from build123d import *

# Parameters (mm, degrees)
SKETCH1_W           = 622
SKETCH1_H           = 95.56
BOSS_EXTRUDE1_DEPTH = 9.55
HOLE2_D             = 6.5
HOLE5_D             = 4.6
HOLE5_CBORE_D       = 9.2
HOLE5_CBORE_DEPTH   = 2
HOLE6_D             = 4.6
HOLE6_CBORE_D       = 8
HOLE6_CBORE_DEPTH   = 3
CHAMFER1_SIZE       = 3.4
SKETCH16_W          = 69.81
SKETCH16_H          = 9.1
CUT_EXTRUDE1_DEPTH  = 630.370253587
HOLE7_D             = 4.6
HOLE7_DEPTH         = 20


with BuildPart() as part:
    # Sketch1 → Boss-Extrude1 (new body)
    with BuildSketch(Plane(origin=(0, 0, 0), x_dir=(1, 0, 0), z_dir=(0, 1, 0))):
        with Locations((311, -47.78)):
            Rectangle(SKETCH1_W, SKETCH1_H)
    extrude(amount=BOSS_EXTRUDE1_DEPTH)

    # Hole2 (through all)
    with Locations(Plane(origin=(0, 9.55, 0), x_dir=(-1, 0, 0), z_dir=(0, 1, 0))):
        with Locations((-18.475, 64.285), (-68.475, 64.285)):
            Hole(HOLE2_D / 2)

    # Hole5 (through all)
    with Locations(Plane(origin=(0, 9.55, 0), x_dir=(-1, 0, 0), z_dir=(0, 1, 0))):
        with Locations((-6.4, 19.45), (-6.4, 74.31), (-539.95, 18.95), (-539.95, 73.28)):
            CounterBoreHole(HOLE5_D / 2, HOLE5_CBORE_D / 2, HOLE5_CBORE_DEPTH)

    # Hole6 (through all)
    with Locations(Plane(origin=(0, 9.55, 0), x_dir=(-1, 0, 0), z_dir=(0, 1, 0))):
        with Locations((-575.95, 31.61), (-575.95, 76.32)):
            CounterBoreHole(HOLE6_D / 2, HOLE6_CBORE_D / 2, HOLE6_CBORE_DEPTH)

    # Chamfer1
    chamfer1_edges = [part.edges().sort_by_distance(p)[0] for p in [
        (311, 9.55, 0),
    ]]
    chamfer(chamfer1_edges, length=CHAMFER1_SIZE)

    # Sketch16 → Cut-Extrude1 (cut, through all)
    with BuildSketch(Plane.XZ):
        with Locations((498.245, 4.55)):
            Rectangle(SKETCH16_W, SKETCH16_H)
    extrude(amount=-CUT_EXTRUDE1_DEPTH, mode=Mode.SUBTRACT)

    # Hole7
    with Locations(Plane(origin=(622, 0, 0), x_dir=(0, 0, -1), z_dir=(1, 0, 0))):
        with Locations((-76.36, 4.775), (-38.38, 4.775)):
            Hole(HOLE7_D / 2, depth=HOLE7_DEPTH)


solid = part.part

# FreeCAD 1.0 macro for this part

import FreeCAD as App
import Part
import Sketcher
from FreeCAD import Vector


def edges_at(feature, points):
    """Names of the edges that pass closest to the given points."""
    edges = feature.Shape.Edges
    near = lambda p: min(range(len(edges)), key=lambda i: edges[i].distToShape(Part.Vertex(*p))[0])
    return sorted({f"Edge{near(p) + 1}" for p in points})

doc = App.newDocument("Part")
params = doc.addObject("Spreadsheet::Sheet", "Params")
for row, (alias, value) in enumerate([
    ("sketch1_width", "622 mm"),
    ("sketch1_height", "95.56 mm"),
    ("pad1_length", "9.55 mm"),
    ("sketch2_diameter", "6.5 mm"),
    ("hole_diameter", "6.5 mm"),
    ("sketch3_diameter", "4.6 mm"),
    ("hole2_diameter", "4.6 mm"),
    ("hole2_cbore_diameter", "9.2 mm"),
    ("hole2_cbore_depth", "2 mm"),
    ("sketch4_diameter", "4.6 mm"),
    ("hole3_diameter", "4.6 mm"),
    ("hole3_cbore_diameter", "8 mm"),
    ("hole3_cbore_depth", "3 mm"),
    ("chamfer_size", "3.4 mm"),
    ("sketch5_height", "9.1 mm"),
    ("sketch5_width", "69.81 mm"),
    ("sketch6_diameter", "4.6 mm"),
    ("hole4_diameter", "4.6 mm"),
    ("hole4_depth", "20 mm"),
], start=1):
    params.set(f"A{row}", alias)
    params.set(f"B{row}", "=" + value)
    params.setAlias(f"B{row}", alias)

body = doc.addObject("PartDesign::Body", "Body")

sketch1 = body.newObject("Sketcher::SketchObject", "Sketch")
sketch1.AttachmentSupport = (doc.getObject("XZ_Plane"), [""])
sketch1.MapMode = "FlatFace"
sketch1.addGeometry(Part.LineSegment(Vector(0, 0, 0), Vector(0, 96, 0)), False)
sketch1.addGeometry(Part.LineSegment(Vector(0, 96, 0), Vector(622, 96, 0)), False)
sketch1.addGeometry(Part.LineSegment(Vector(622, 96, 0), Vector(622, 0, 0)), False)
sketch1.addGeometry(Part.LineSegment(Vector(622, 0, 0), Vector(0, 0, 0)), False)
sketch1.addConstraint(Sketcher.Constraint("Coincident", 0, 2, 1, 1))
sketch1.addConstraint(Sketcher.Constraint("Coincident", 1, 2, 2, 1))
sketch1.addConstraint(Sketcher.Constraint("Coincident", 2, 2, 3, 1))
sketch1.addConstraint(Sketcher.Constraint("Coincident", 3, 2, 0, 1))
sketch1.addConstraint(Sketcher.Constraint("Vertical", 0))
sketch1.addConstraint(Sketcher.Constraint("Horizontal", 1))
sketch1.addConstraint(Sketcher.Constraint("Vertical", 2))
sketch1.addConstraint(Sketcher.Constraint("Horizontal", 3))
sketch1.addConstraint(Sketcher.Constraint("Coincident", 3, 2, -1, 1))
sketch1.addConstraint(Sketcher.Constraint("DistanceX", 1, 1, 1, 2, 622.0))
sketch1.addConstraint(Sketcher.Constraint("DistanceY", 0, 1, 0, 2, 95.56))
sketch1.setExpression("Constraints[9]", "Params.sketch1_width")
sketch1.setExpression("Constraints[10]", "Params.sketch1_height")
pad1 = body.newObject("PartDesign::Pad", "Pad")
pad1.Profile = sketch1
pad1.setExpression("Length", "Params.pad1_length")
pad1.Reversed = True

sketch2 = body.newObject("Sketcher::SketchObject", "Sketch001")
sketch2.AttachmentSupport = (doc.getObject("XZ_Plane"), [""])
sketch2.MapMode = "FlatFace"
sketch2.AttachmentOffset = App.Placement(Vector(0, 0, -9.55), App.Rotation())
sketch2.addGeometry(Part.Circle(Vector(18.5, 64.3, 0), Vector(0, 0, 1), 3.2), False)
sketch2.addGeometry(Part.Circle(Vector(68.5, 64.3, 0), Vector(0, 0, 1), 3.2), False)
sketch2.addConstraint(Sketcher.Constraint("Equal", 0, 1))
sketch2.addConstraint(Sketcher.Constraint("Horizontal", 0, 3, 1, 3))
sketch2.addConstraint(Sketcher.Constraint("Diameter", 0, 6.5))
sketch2.addConstraint(Sketcher.Constraint("DistanceX", 0, 3, 1, 3, 50.0))
sketch2.addConstraint(Sketcher.Constraint("DistanceX", -1, 1, 0, 3, 18.475))
sketch2.addConstraint(Sketcher.Constraint("DistanceY", -1, 1, 0, 3, 64.285))
sketch2.setExpression("Constraints[2]", "Params.sketch2_diameter")
doc.recompute()
hole = body.newObject("PartDesign::Hole", "Hole")
hole.Profile = sketch2
hole.ThreadType = "None"
hole.setExpression("Diameter", "Params.hole_diameter")
hole.DepthType = "ThroughAll"
hole.Reversed = True

sketch3 = body.newObject("Sketcher::SketchObject", "Sketch002")
sketch3.AttachmentSupport = (doc.getObject("XZ_Plane"), [""])
sketch3.MapMode = "FlatFace"
sketch3.AttachmentOffset = App.Placement(Vector(0, 0, -9.55), App.Rotation())
sketch3.addGeometry(Part.Circle(Vector(6.4, 19.4, 0), Vector(0, 0, 1), 2.3), False)
sketch3.addGeometry(Part.Circle(Vector(6.4, 74.3, 0), Vector(0, 0, 1), 2.3), False)
sketch3.addGeometry(Part.Circle(Vector(540, 18.9, 0), Vector(0, 0, 1), 2.3), False)
sketch3.addGeometry(Part.Circle(Vector(540, 73.3, 0), Vector(0, 0, 1), 2.3), False)
sketch3.addConstraint(Sketcher.Constraint("Equal", 0, 1))
sketch3.addConstraint(Sketcher.Constraint("Equal", 1, 2))
sketch3.addConstraint(Sketcher.Constraint("Equal", 2, 3))
sketch3.addConstraint(Sketcher.Constraint("Vertical", 0, 3, 1, 3))
sketch3.addConstraint(Sketcher.Constraint("Vertical", 2, 3, 3, 3))
sketch3.addConstraint(Sketcher.Constraint("Diameter", 0, 4.6))
sketch3.addConstraint(Sketcher.Constraint("DistanceX", -1, 1, 0, 3, 6.4))
sketch3.addConstraint(Sketcher.Constraint("DistanceY", 2, 3, 0, 3, 0.5))
sketch3.addConstraint(Sketcher.Constraint("DistanceY", -1, 1, 0, 3, 19.45))
sketch3.addConstraint(Sketcher.Constraint("DistanceY", -1, 1, 1, 3, 74.31))
sketch3.addConstraint(Sketcher.Constraint("DistanceX", -1, 1, 2, 3, 539.95))
sketch3.addConstraint(Sketcher.Constraint("DistanceY", -1, 1, 3, 3, 73.28))
sketch3.setExpression("Constraints[5]", "Params.sketch3_diameter")
doc.recompute()
hole2 = body.newObject("PartDesign::Hole", "Hole001")
hole2.Profile = sketch3
hole2.ThreadType = "None"
hole2.setExpression("Diameter", "Params.hole2_diameter")
hole2.DepthType = "ThroughAll"
hole2.HoleCutType = "Counterbore"
hole2.setExpression("HoleCutDiameter", "Params.hole2_cbore_diameter")
hole2.setExpression("HoleCutDepth", "Params.hole2_cbore_depth")
hole2.Reversed = True

sketch4 = body.newObject("Sketcher::SketchObject", "Sketch003")
sketch4.AttachmentSupport = (doc.getObject("XZ_Plane"), [""])
sketch4.MapMode = "FlatFace"
sketch4.AttachmentOffset = App.Placement(Vector(0, 0, -9.55), App.Rotation())
sketch4.addGeometry(Part.Circle(Vector(576, 31.6, 0), Vector(0, 0, 1), 2.3), False)
sketch4.addGeometry(Part.Circle(Vector(576, 76.3, 0), Vector(0, 0, 1), 2.3), False)
sketch4.addConstraint(Sketcher.Constraint("Equal", 0, 1))
sketch4.addConstraint(Sketcher.Constraint("Vertical", 0, 3, 1, 3))
sketch4.addConstraint(Sketcher.Constraint("Diameter", 0, 4.6))
sketch4.addConstraint(Sketcher.Constraint("DistanceX", -1, 1, 0, 3, 575.95))
sketch4.addConstraint(Sketcher.Constraint("DistanceY", -1, 1, 0, 3, 31.61))
sketch4.addConstraint(Sketcher.Constraint("DistanceY", -1, 1, 1, 3, 76.32))
sketch4.setExpression("Constraints[2]", "Params.sketch4_diameter")
doc.recompute()
hole3 = body.newObject("PartDesign::Hole", "Hole002")
hole3.Profile = sketch4
hole3.ThreadType = "None"
hole3.setExpression("Diameter", "Params.hole3_diameter")
hole3.DepthType = "ThroughAll"
hole3.HoleCutType = "Counterbore"
hole3.setExpression("HoleCutDiameter", "Params.hole3_cbore_diameter")
hole3.setExpression("HoleCutDepth", "Params.hole3_cbore_depth")
hole3.Reversed = True
doc.recompute()

chamfer = body.newObject("PartDesign::Chamfer", "Chamfer")
chamfer.Base = (hole3, edges_at(hole3, [(311, 9.55, 0)]))
chamfer.setExpression("Size", "Params.chamfer_size")

sketch5 = body.newObject("Sketcher::SketchObject", "Sketch004")
sketch5.AttachmentSupport = (doc.getObject("XZ_Plane"), [""])
sketch5.MapMode = "FlatFace"
sketch5.addGeometry(Part.LineSegment(Vector(463, 9, 0), Vector(463, 0, 0)), False)
sketch5.addGeometry(Part.LineSegment(Vector(463, 0, 0), Vector(533, 0, 0)), False)
sketch5.addGeometry(Part.LineSegment(Vector(533, 0, 0), Vector(533, 9, 0)), False)
sketch5.addGeometry(Part.LineSegment(Vector(533, 9, 0), Vector(463, 9, 0)), False)
sketch5.addConstraint(Sketcher.Constraint("Coincident", 0, 2, 1, 1))
sketch5.addConstraint(Sketcher.Constraint("Coincident", 1, 2, 2, 1))
sketch5.addConstraint(Sketcher.Constraint("Coincident", 2, 2, 3, 1))
sketch5.addConstraint(Sketcher.Constraint("Coincident", 3, 2, 0, 1))
sketch5.addConstraint(Sketcher.Constraint("Vertical", 0))
sketch5.addConstraint(Sketcher.Constraint("Horizontal", 1))
sketch5.addConstraint(Sketcher.Constraint("Vertical", 2))
sketch5.addConstraint(Sketcher.Constraint("Horizontal", 3))
sketch5.addConstraint(Sketcher.Constraint("PointOnObject", 0, 2, -1))
sketch5.addConstraint(Sketcher.Constraint("DistanceY", 0, 2, 0, 1, 9.1))
sketch5.addConstraint(Sketcher.Constraint("DistanceX", 1, 1, 1, 2, 69.81))
sketch5.addConstraint(Sketcher.Constraint("DistanceX", -1, 1, 0, 2, 463.34))
sketch5.setExpression("Constraints[9]", "Params.sketch5_height")
sketch5.setExpression("Constraints[10]", "Params.sketch5_width")
pocket1 = body.newObject("PartDesign::Pocket", "Pocket")
pocket1.Profile = sketch5
pocket1.Type = "ThroughAll"

sketch6 = body.newObject("Sketcher::SketchObject", "Sketch005")
sketch6.AttachmentSupport = (doc.getObject("YZ_Plane"), [""])
sketch6.MapMode = "FlatFace"
sketch6.AttachmentOffset = App.Placement(Vector(0, 0, 622), App.Rotation())
sketch6.addGeometry(Part.Circle(Vector(4.8, 76.4, 0), Vector(0, 0, 1), 2.3), False)
sketch6.addGeometry(Part.Circle(Vector(4.8, 38.4, 0), Vector(0, 0, 1), 2.3), False)
sketch6.addConstraint(Sketcher.Constraint("Equal", 0, 1))
sketch6.addConstraint(Sketcher.Constraint("Vertical", 0, 3, 1, 3))
sketch6.addConstraint(Sketcher.Constraint("Diameter", 0, 4.6))
sketch6.addConstraint(Sketcher.Constraint("DistanceY", -1, 1, 0, 3, 76.36))
sketch6.addConstraint(Sketcher.Constraint("DistanceY", -1, 1, 1, 3, 38.38))
sketch6.addConstraint(Sketcher.Constraint("DistanceX", -1, 1, 0, 3, 4.775))
sketch6.setExpression("Constraints[2]", "Params.sketch6_diameter")
doc.recompute()
hole4 = body.newObject("PartDesign::Hole", "Hole003")
hole4.Profile = sketch6
hole4.ThreadType = "None"
hole4.setExpression("Diameter", "Params.hole4_diameter")
hole4.DepthType = "Dimension"
hole4.setExpression("Depth", "Params.hole4_depth")
hole4.DrillPoint = "Flat"

doc.recompute()
